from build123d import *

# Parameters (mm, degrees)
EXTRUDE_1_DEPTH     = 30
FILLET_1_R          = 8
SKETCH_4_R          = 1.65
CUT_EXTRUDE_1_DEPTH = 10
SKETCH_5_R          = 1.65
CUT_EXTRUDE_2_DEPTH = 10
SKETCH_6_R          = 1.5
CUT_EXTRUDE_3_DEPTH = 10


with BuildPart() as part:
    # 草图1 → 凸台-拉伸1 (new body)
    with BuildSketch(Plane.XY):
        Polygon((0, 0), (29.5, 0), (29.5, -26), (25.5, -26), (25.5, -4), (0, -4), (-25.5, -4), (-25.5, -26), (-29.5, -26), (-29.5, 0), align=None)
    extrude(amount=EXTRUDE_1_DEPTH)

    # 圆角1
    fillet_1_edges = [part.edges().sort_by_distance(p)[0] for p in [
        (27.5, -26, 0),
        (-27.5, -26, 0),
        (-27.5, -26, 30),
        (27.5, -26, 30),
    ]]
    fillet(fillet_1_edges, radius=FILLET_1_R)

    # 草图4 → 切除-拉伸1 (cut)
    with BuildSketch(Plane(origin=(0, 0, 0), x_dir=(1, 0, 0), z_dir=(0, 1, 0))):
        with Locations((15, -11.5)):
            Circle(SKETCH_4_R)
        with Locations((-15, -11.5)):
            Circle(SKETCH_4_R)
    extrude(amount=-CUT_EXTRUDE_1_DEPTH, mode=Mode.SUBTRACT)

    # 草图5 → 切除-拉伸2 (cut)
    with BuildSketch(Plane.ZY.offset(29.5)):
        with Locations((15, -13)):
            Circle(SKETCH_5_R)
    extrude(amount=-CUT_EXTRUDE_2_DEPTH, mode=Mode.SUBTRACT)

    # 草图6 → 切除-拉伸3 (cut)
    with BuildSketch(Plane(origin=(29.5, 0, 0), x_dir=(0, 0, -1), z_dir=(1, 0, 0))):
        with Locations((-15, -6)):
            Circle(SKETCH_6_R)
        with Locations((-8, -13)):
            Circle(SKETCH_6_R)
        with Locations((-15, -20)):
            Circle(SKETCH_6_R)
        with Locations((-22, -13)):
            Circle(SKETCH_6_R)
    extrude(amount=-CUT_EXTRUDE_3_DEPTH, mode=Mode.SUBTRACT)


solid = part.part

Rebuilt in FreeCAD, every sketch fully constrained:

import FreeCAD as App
import Part
import Sketcher
from FreeCAD import Vector
Q = App.Units.Quantity


def edges_at(feature, points):
    """Names of the edges that pass closest to the given points."""
    edges = feature.Shape.Edges
    near = lambda p: min(range(len(edges)), key=lambda i: edges[i].distToShape(Part.Vertex(*p))[0])
    return sorted({f"Edge{near(p) + 1}" for p in points})


def add_polygon(sketch, points):
    """Adds a closed chain of lines whose ends are joined by coincident constraints."""
    first, n = sketch.GeometryCount, len(points)
    for a, b in zip(points, points[1:] + points[:1]):
        sketch.addGeometry(Part.LineSegment(App.Vector(*a, 0), App.Vector(*b, 0)), False)
    for i in range(n):
        sketch.addConstraint(Sketcher.Constraint("Coincident", first + i, 2, first + (i + 1) % n, 1))

doc = App.newDocument("Part")
body = doc.addObject("PartDesign::Body", "Body")

# Sketch on XY plane
sketch1 = body.newObject("Sketcher::SketchObject", "Sketch")
sketch1.AttachmentSupport = (doc.getObject("XY_Plane"), [""])
sketch1.MapMode = "FlatFace"
add_polygon(sketch1, [(29.5, 0), (-29.5, 0), (-29.5, -26), (-25.5, -26), (-25.5, -4), (25.5, -4), (25.5, -26), (29.5, -26)])  # lines 0-7
sketch1.addConstraint([
    Sketcher.Constraint("Horizontal", 0),
    Sketcher.Constraint("Vertical", 1),
    Sketcher.Constraint("Horizontal", 2),
    Sketcher.Constraint("Vertical", 3),
    Sketcher.Constraint("Horizontal", 4),
    Sketcher.Constraint("Vertical", 5),
    Sketcher.Constraint("Horizontal", 6),
    Sketcher.Constraint("Vertical", 7),
    Sketcher.Constraint("Symmetric", 0, 2, 7, 2, -1, 1),
    Sketcher.Constraint("Symmetric", 2, 2, 5, 2, -2),
    Sketcher.Constraint("DistanceX", 0, 2, 0, 1, Q("59 mm")),
    Sketcher.Constraint("DistanceX", 2, 1, 2, 2, Q("4 mm")),
    Sketcher.Constraint("DistanceY", 1, 2, 1, 1, Q("26 mm")),
    Sketcher.Constraint("DistanceY", 3, 1, 3, 2, Q("22 mm")),
])
pad1 = body.newObject("PartDesign::Pad", "Pad")
pad1.Profile = sketch1
pad1.Length = 30
doc.recompute()

fillet = body.newObject("PartDesign::Fillet", "Fillet")
fillet.Base = (pad1, edges_at(pad1, [
    (27.5, -26, 0),
    (-27.5, -26, 0),
    (-27.5, -26, 30),
    (27.5, -26, 30),
]))
fillet.Radius = 8

# Sketch on XZ plane
sketch2 = body.newObject("Sketcher::SketchObject", "Sketch001")
sketch2.AttachmentSupport = (doc.getObject("XZ_Plane"), [""])
sketch2.MapMode = "FlatFace"
sketch2.addGeometry([
    Part.Circle(Vector(15, 11.5, 0), Vector(0, 0, 1), 1.65),
    Part.Circle(Vector(-15, 11.5, 0), Vector(0, 0, 1), 1.65),
], False)
sketch2.addConstraint([
    Sketcher.Constraint("Equal", 0, 1),
    Sketcher.Constraint("Symmetric", 0, 3, 1, 3, -2),
    Sketcher.Constraint("Diameter", 0, Q("3.3 mm")),
    Sketcher.Constraint("DistanceX", -1, 1, 0, 3, Q("15 mm")),
    Sketcher.Constraint("DistanceY", -1, 1, 0, 3, Q("11.5 mm")),
])
pocket1 = body.newObject("PartDesign::Pocket", "Pocket")
pocket1.Profile = sketch2
pocket1.Length = 10
pocket1.Reversed = True

# Sketch on YZ plane
sketch3 = body.newObject("Sketcher::SketchObject", "Sketch002")
sketch3.AttachmentSupport = (doc.getObject("YZ_Plane"), [""])
sketch3.MapMode = "FlatFace"
sketch3.AttachmentOffset = App.Placement(Vector(0, 0, -29.5), App.Rotation())
sketch3.addGeometry(Part.Circle(Vector(-13, 15, 0), Vector(0, 0, 1), 1.65), False)
sketch3.addConstraint([
    Sketcher.Constraint("Diameter", 0, Q("3.3 mm")),
    Sketcher.Constraint("DistanceX", 0, 3, -1, 1, Q("13 mm")),
    Sketcher.Constraint("DistanceY", -1, 1, 0, 3, Q("15 mm")),
])
pocket2 = body.newObject("PartDesign::Pocket", "Pocket001")
pocket2.Profile = sketch3
pocket2.Length = 10
pocket2.Reversed = True

# Sketch on YZ plane
sketch4 = body.newObject("Sketcher::SketchObject", "Sketch003")
sketch4.AttachmentSupport = (doc.getObject("YZ_Plane"), [""])
sketch4.MapMode = "FlatFace"
sketch4.AttachmentOffset = App.Placement(Vector(0, 0, 29.5), App.Rotation())
sketch4.addGeometry([
    Part.Circle(Vector(-6, 15, 0), Vector(0, 0, 1), 1.5),
    Part.Circle(Vector(-13, 8, 0), Vector(0, 0, 1), 1.5),
    Part.Circle(Vector(-20, 15, 0), Vector(0, 0, 1), 1.5),
    Part.Circle(Vector(-13, 22, 0), Vector(0, 0, 1), 1.5),
], False)
sketch4.addConstraint([
    Sketcher.Constraint("Equal", 0, 1),
    Sketcher.Constraint("Equal", 1, 2),
    Sketcher.Constraint("Equal", 2, 3),
    Sketcher.Constraint("Horizontal", 0, 3, 2, 3),
    Sketcher.Constraint("Vertical", 1, 3, 3, 3),
    Sketcher.Constraint("Diameter", 0, Q("3 mm")),
    Sketcher.Constraint("DistanceX", 0, 3, -1, 1, Q("6 mm")),
    Sketcher.Constraint("DistanceY", -1, 1, 0, 3, Q("15 mm")),
    Sketcher.Constraint("DistanceX", 1, 3, -1, 1, Q("13 mm")),
    Sketcher.Constraint("DistanceY", -1, 1, 1, 3, Q("8 mm")),
    Sketcher.Constraint("DistanceX", 2, 3, -1, 1, Q("20 mm")),
    Sketcher.Constraint("DistanceY", -1, 1, 3, 3, Q("22 mm")),
])
pocket3 = body.newObject("PartDesign::Pocket", "Pocket002")
pocket3.Profile = sketch4
pocket3.Length = 10

doc.recompute()
